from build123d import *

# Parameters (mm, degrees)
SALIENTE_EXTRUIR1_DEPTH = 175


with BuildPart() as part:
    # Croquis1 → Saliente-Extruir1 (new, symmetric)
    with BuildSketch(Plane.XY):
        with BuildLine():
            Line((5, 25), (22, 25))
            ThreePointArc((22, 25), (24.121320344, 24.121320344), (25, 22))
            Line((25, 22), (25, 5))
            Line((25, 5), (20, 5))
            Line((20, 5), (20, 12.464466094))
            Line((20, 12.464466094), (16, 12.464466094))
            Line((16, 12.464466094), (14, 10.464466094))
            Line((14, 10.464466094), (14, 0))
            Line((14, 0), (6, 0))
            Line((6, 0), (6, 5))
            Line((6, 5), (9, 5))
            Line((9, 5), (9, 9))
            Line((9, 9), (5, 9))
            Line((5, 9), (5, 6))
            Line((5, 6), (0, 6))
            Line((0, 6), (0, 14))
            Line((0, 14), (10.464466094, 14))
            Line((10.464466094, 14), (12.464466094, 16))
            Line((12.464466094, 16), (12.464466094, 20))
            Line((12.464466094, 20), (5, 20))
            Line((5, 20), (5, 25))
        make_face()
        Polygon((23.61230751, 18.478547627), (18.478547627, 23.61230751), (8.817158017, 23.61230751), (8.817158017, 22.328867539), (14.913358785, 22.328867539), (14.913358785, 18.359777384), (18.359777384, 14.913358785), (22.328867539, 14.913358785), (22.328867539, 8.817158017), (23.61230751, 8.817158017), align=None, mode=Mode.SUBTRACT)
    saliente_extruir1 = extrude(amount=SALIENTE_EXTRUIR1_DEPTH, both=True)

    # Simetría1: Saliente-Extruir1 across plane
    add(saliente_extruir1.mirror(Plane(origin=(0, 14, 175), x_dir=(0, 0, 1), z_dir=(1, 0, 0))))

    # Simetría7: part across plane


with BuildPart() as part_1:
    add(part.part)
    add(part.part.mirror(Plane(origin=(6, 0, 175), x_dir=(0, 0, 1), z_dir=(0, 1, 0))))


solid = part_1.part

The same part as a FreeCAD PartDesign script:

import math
import FreeCAD as App
import Part
import Sketcher

V = App.Vector
Q = App.Units.Quantity

doc = App.newDocument("Part")
params = doc.addObject("Spreadsheet::Sheet", "Params")
for row, (alias, value) in enumerate([
    ("sketch1_radius", "3 mm"),
    ("sketch1_width", "17 mm"),
    ("sketch1_width2", "5 mm"),
    ("sketch1_width3", "4 mm"),
    ("sketch1_width4", "3 mm"),
    ("pad1_length", "350 mm"),
], start=1):
    params.set(f"A{row}", alias)
    params.set(f"B{row}", "=" + value)
    params.setAlias(f"B{row}", alias)

body = doc.addObject("PartDesign::Body", "Body")

# Sketch on XY plane
sketch1 = body.newObject("Sketcher::SketchObject", "Sketch")
sketch1.AttachmentSupport = (doc.getObject("XY_Plane"), [""])
sketch1.MapMode = "FlatFace"
sketch1.addGeometry([
    Part.LineSegment(V(22, 25, 0), V(5, 25, 0)),  # 0
    Part.LineSegment(V(5, 25, 0), V(5, 20, 0)),  # 1
    Part.LineSegment(V(5, 20, 0), V(12.5, 20, 0)),  # 2
    Part.LineSegment(V(12.5, 20, 0), V(12.5, 16, 0)),  # 3
    Part.LineSegment(V(12.5, 16, 0), V(10.5, 14, 0)),  # 4
    Part.LineSegment(V(10.5, 14, 0), V(0, 14, 0)),  # 5
    Part.LineSegment(V(0, 14, 0), V(0, 6, 0)),  # 6
    Part.LineSegment(V(0, 6, 0), V(5, 6, 0)),  # 7
    Part.LineSegment(V(5, 6, 0), V(5, 9, 0)),  # 8
    Part.LineSegment(V(5, 9, 0), V(9, 9, 0)),  # 9
    Part.LineSegment(V(9, 9, 0), V(9, 5, 0)),  # 10
    Part.LineSegment(V(9, 5, 0), V(6, 5, 0)),  # 11
    Part.LineSegment(V(6, 5, 0), V(6, 0, 0)),  # 12
    Part.LineSegment(V(6, 0, 0), V(14, 0, 0)),  # 13
    Part.LineSegment(V(14, 0, 0), V(14, 10.5, 0)),  # 14
    Part.LineSegment(V(14, 10.5, 0), V(16, 12.5, 0)),  # 15
    Part.LineSegment(V(16, 12.5, 0), V(20, 12.5, 0)),  # 16
    Part.LineSegment(V(20, 12.5, 0), V(20, 5, 0)),  # 17
    Part.LineSegment(V(20, 5, 0), V(25, 5, 0)),  # 18
    Part.LineSegment(V(25, 5, 0), V(25, 22, 0)),  # 19
    Part.ArcOfCircle(Part.Circle(V(22, 22, 0), V(0, 0, 1), 3), math.radians(0), math.radians(90)),  # 20
    Part.LineSegment(V(23.6, 18.5, 0), V(23.6, 8.8, 0)),  # 21
    Part.LineSegment(V(23.6, 8.8, 0), V(22.3, 8.8, 0)),  # 22
    Part.LineSegment(V(22.3, 8.8, 0), V(22.3, 14.9, 0)),  # 23
    Part.LineSegment(V(22.3, 14.9, 0), V(18.4, 14.9, 0)),  # 24
    Part.LineSegment(V(18.4, 14.9, 0), V(14.9, 18.4, 0)),  # 25
    Part.LineSegment(V(14.9, 18.4, 0), V(14.9, 22.3, 0)),  # 26
    Part.LineSegment(V(14.9, 22.3, 0), V(8.8, 22.3, 0)),  # 27
    Part.LineSegment(V(8.8, 22.3, 0), V(8.8, 23.6, 0)),  # 28
    Part.LineSegment(V(8.8, 23.6, 0), V(18.5, 23.6, 0)),  # 29
    Part.LineSegment(V(18.5, 23.6, 0), V(23.6, 18.5, 0)),  # 30
], False)
sketch1.addConstraint([
    Sketcher.Constraint("Coincident", 0, 2, 1, 1),
    Sketcher.Constraint("Coincident", 1, 2, 2, 1),
    Sketcher.Constraint("Coincident", 2, 2, 3, 1),
    Sketcher.Constraint("Coincident", 3, 2, 4, 1),
    Sketcher.Constraint("Coincident", 4, 2, 5, 1),
    Sketcher.Constraint("Coincident", 5, 2, 6, 1),
    Sketcher.Constraint("Coincident", 6, 2, 7, 1),
    Sketcher.Constraint("Coincident", 7, 2, 8, 1),
    Sketcher.Constraint("Coincident", 8, 2, 9, 1),
    Sketcher.Constraint("Coincident", 9, 2, 10, 1),
    Sketcher.Constraint("Coincident", 10, 2, 11, 1),
    Sketcher.Constraint("Coincident", 11, 2, 12, 1),
    Sketcher.Constraint("Coincident", 12, 2, 13, 1),
    Sketcher.Constraint("Coincident", 13, 2, 14, 1),
    Sketcher.Constraint("Coincident", 14, 2, 15, 1),
    Sketcher.Constraint("Coincident", 15, 2, 16, 1),
    Sketcher.Constraint("Coincident", 16, 2, 17, 1),
    Sketcher.Constraint("Coincident", 17, 2, 18, 1),
    Sketcher.Constraint("Coincident", 18, 2, 19, 1),
    Sketcher.Constraint("Tangent", 19, 2, 20, 1),
    Sketcher.Constraint("Tangent", 20, 2, 0, 1),
    Sketcher.Constraint("Coincident", 21, 2, 22, 1),
    Sketcher.Constraint("Coincident", 22, 2, 23, 1),
    Sketcher.Constraint("Coincident", 23, 2, 24, 1),
    Sketcher.Constraint("Coincident", 24, 2, 25, 1),
    Sketcher.Constraint("Coincident", 25, 2, 26, 1),
    Sketcher.Constraint("Coincident", 26, 2, 27, 1),
    Sketcher.Constraint("Coincident", 27, 2, 28, 1),
    Sketcher.Constraint("Coincident", 28, 2, 29, 1),
    Sketcher.Constraint("Coincident", 29, 2, 30, 1),
    Sketcher.Constraint("Coincident", 30, 2, 21, 1),
    Sketcher.Constraint("Horizontal", 0),
    Sketcher.Constraint("Vertical", 1),
    Sketcher.Constraint("Horizontal", 2),
    Sketcher.Constraint("Vertical", 3),
    Sketcher.Constraint("Horizontal", 5),
    Sketcher.Constraint("Vertical", 6),
    Sketcher.Constraint("Horizontal", 7),
    Sketcher.Constraint("Vertical", 8),
    Sketcher.Constraint("Horizontal", 9),
    Sketcher.Constraint("Vertical", 10),
    Sketcher.Constraint("Horizontal", 11),
    Sketcher.Constraint("Vertical", 12),
    Sketcher.Constraint("Horizontal", 13),
    Sketcher.Constraint("Vertical", 14),
    Sketcher.Constraint("Horizontal", 16),
    Sketcher.Constraint("Vertical", 17),
    Sketcher.Constraint("Horizontal", 18),
    Sketcher.Constraint("Vertical", 19),
    Sketcher.Constraint("Vertical", 21),
    Sketcher.Constraint("Horizontal", 22),
    Sketcher.Constraint("Vertical", 23),
    Sketcher.Constraint("Horizontal", 24),
    Sketcher.Constraint("Vertical", 26),
    Sketcher.Constraint("Horizontal", 27),
    Sketcher.Constraint("Vertical", 28),
    Sketcher.Constraint("Horizontal", 29),
    Sketcher.Constraint("PointOnObject", 5, 2, -2),
    Sketcher.Constraint("PointOnObject", 12, 2, -1),
    Sketcher.Constraint("Parallel", 4, 15),
    Sketcher.Constraint("Perpendicular", 15, 25),
    Sketcher.Constraint("Parallel", 25, 30),
    Sketcher.Constraint("Horizontal", 11, 2, 17, 2),
    Sketcher.Constraint("Vertical", 1, 2, 7, 2),
    Sketcher.Constraint("Equal", 9, 16),
    Sketcher.Constraint("Equal", 7, 18),
    Sketcher.Constraint("Equal", 18, 1),
    Sketcher.Constraint("Equal", 16, 3),
    Sketcher.Constraint("Equal", 13, 6),
    Sketcher.Constraint("Equal", 11, 8),
    Sketcher.Constraint("Equal", 3, 10),
    Sketcher.Constraint("Equal", 1, 12),
    Sketcher.Constraint("Equal", 5, 14),
    Sketcher.Constraint("Equal", 2, 17),
    Sketcher.Constraint("Equal", 0, 19),
    Sketcher.Constraint("Equal", 29, 21),
    Sketcher.Constraint("Equal", 27, 23),
    Sketcher.Constraint("Equal", 24, 26),
    Sketcher.Constraint("Radius", 20, Q("3 mm")),
    Sketcher.Constraint("DistanceX", 0, 2, 0, 1, Q("17 mm")),
    Sketcher.Constraint("DistanceX", 7, 1, 7, 2, Q("5 mm")),
    Sketcher.Constraint("DistanceX", 9, 1, 9, 2, Q("4 mm")),
    Sketcher.Constraint("DistanceX", 11, 2, 11, 1, Q("3 mm")),
    Sketcher.Constraint("DistanceX", 13, 1, 13, 2, Q("8 mm")),
    Sketcher.Constraint("DistanceX", 27, 2, 27, 1, Q("6.096201 mm")),
    Sketcher.Constraint("DistanceX", 22, 2, 22, 1, Q("1.28344 mm")),
    Sketcher.Constraint("DistanceX", 24, 2, 24, 1, Q("3.96909 mm")),
    Sketcher.Constraint("DistanceX", 29, 1, 29, 2, Q("9.66139 mm")),
    Sketcher.Constraint("Distance", 25, Q("4.873972 mm")),
    Sketcher.Constraint("DistanceX", 2, 1, 2, 2, Q("7.464466 mm")),
    Sketcher.Constraint("DistanceY", -1, 1, 21, 2, Q("8.817158 mm")),
    Sketcher.Constraint("DistanceX", -1, 1, 25, 2, Q("14.913359 mm")),
])
sketch1.setExpression("Constraints[78]", "Params.sketch1_radius")
sketch1.setExpression("Constraints[79]", "Params.sketch1_width")
sketch1.setExpression("Constraints[80]", "Params.sketch1_width2")
sketch1.setExpression("Constraints[81]", "Params.sketch1_width3")
sketch1.setExpression("Constraints[82]", "Params.sketch1_width4")
pad1 = body.newObject("PartDesign::Pad", "Pad")
pad1.Profile = sketch1
pad1.setExpression("Length", "Params.pad1_length")
pad1.Midplane = True
doc.recompute()

mirrored = body.newObject("PartDesign::Mirrored", "Mirrored")
mirrored.Originals = [pad1]
mirrored.MirrorPlane = (doc.getObject("YZ_Plane"), [""])
body.Tip = mirrored
body2 = doc.addObject("PartDesign::Body", "Body001")
doc.recompute()

body2.BaseFeature = body
doc.recompute()

mirroring = doc.addObject("Part::Mirroring", "Mirroring")
mirroring.Source = body
mirroring.Base = V(6, 0, 175)
mirroring.Normal = V(0, 1, 0)
body3 = doc.addObject("PartDesign::Body", "Body002")
body3.BaseFeature = mirroring
boolean = body2.newObject("PartDesign::Boolean", "Boolean")
boolean.Type = "Fuse"
boolean.addObjects([body3])
doc.recompute()
mirroring.Visibility = False

doc.recompute()
